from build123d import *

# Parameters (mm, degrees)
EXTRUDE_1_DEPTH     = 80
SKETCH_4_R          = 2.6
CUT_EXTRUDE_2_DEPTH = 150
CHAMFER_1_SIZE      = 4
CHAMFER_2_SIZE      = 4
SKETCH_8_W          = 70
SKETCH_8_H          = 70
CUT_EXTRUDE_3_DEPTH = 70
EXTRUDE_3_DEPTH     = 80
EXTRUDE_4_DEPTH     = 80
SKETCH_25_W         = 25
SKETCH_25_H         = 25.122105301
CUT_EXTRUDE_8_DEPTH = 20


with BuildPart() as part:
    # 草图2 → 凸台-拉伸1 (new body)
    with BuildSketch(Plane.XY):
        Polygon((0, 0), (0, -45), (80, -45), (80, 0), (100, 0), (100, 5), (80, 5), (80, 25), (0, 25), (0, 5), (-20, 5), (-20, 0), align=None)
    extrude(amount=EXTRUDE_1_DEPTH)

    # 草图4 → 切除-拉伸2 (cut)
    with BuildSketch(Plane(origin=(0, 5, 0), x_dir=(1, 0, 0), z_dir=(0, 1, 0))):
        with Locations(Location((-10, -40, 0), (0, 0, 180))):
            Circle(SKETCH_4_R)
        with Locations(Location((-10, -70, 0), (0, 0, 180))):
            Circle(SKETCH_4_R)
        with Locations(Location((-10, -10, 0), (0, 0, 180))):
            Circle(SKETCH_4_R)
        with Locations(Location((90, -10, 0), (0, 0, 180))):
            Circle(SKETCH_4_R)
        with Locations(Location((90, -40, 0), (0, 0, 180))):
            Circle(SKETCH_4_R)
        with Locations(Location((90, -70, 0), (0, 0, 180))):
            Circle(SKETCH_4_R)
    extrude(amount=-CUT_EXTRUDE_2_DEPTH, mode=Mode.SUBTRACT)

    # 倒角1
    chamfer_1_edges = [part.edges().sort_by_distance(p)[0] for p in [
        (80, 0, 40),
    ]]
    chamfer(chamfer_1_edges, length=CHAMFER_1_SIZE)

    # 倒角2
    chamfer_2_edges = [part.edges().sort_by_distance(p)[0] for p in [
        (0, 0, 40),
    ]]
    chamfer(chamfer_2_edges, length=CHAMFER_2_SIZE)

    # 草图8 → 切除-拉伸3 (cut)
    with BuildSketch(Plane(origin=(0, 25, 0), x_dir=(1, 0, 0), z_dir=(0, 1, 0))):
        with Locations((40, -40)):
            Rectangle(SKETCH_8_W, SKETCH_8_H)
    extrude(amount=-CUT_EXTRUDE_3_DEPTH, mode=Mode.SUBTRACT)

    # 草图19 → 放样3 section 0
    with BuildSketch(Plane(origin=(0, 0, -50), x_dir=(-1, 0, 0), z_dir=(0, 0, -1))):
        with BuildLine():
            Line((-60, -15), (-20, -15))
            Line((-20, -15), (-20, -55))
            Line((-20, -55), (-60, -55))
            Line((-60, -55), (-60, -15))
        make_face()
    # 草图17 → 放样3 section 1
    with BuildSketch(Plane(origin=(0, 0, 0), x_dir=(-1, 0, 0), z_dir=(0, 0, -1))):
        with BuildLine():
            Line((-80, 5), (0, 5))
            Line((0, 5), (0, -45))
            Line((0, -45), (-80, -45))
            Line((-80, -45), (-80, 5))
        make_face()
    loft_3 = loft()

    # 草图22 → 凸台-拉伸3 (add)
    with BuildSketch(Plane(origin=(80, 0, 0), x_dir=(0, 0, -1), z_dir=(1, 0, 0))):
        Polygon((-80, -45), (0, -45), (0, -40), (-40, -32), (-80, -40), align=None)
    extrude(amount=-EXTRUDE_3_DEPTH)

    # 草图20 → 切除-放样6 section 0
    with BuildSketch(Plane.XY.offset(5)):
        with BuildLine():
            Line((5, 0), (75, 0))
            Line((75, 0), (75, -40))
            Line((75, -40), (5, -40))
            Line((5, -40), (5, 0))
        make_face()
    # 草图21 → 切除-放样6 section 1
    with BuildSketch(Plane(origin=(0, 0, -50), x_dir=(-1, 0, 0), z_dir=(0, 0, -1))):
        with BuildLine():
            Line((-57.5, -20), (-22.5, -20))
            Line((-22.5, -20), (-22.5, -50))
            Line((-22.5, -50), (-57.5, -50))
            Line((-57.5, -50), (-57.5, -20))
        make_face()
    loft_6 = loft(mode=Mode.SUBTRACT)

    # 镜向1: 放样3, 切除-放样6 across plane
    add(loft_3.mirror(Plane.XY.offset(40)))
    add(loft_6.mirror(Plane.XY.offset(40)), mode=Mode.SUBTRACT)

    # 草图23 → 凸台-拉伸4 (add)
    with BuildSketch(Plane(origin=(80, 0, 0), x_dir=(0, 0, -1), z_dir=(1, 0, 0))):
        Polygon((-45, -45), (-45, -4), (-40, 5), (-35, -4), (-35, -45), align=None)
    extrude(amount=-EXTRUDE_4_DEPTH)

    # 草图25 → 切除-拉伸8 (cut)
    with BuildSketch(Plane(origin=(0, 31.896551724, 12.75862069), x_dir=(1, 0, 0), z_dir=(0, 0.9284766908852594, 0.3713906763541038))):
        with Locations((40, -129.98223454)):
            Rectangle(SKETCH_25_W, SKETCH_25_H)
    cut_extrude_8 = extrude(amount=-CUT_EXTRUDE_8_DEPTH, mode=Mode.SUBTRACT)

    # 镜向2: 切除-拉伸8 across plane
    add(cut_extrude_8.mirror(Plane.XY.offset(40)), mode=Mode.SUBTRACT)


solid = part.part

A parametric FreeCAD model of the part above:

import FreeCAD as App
import Part
import Sketcher
Q = App.Units.Quantity


def edges_at(feature, points):
    """Names of the edges that pass closest to the given points."""
    edges = feature.Shape.Edges
    near = lambda p: min(range(len(edges)), key=lambda i: edges[i].distToShape(Part.Vertex(*p))[0])
    return sorted({f"Edge{near(p) + 1}" for p in points})

doc = App.newDocument("Part")
params = doc.addObject("Spreadsheet::Sheet", "Params")
for row, (alias, value) in enumerate([
    ("sketch1_width", "80 mm"),
    ("sketch1_width2", "20 mm"),
    ("sketch1_height", "45 mm"),
    ("sketch1_height2", "5 mm"),
    ("pad1_length", "80 mm"),
    ("sketch2_diameter", "5.2 mm"),
    ("pocket1_length", "150 mm"),
    ("chamfer_size", "4 mm"),
    ("chamfer2_size", "4 mm"),
    ("sketch3_width", "70 mm"),
    ("pocket2_length", "70 mm"),
    ("sketch4_width", "40 mm"),
    ("sketch5_width", "80 mm"),
    ("sketch5_height", "50 mm"),
    ("sketch6_width", "5 mm"),
    ("sketch6_height", "80 mm"),
    ("pad2_length", "80 mm"),
    ("sketch7_width", "70 mm"),
    ("sketch7_height", "40 mm"),
    ("sketch8_width", "35 mm"),
    ("sketch8_height", "30 mm"),
    ("sketch9_width", "41 mm"),
    ("sketch9_height", "10 mm"),
    ("pad3_length", "80 mm"),
    ("sketch10_width", "25 mm"),
    ("pocket3_length", "20 mm"),
], start=1):
    params.set(f"A{row}", alias)
    params.set(f"B{row}", "=" + value)
    params.setAlias(f"B{row}", alias)

body = doc.addObject("PartDesign::Body", "Body")

sketch1 = body.newObject("Sketcher::SketchObject", "Sketch")
sketch1.AttachmentSupport = (doc.getObject("XY_Plane"), [""])
sketch1.MapMode = "FlatFace"
sketch1.addGeometry(Part.LineSegment(App.Vector(0, 0, 0), App.Vector(0, -45, 0)), False)
sketch1.addGeometry(Part.LineSegment(App.Vector(0, -45, 0), App.Vector(80, -45, 0)), False)
sketch1.addGeometry(Part.LineSegment(App.Vector(80, -45, 0), App.Vector(80, 0, 0)), False)
sketch1.addGeometry(Part.LineSegment(App.Vector(80, 0, 0), App.Vector(100, 0, 0)), False)
sketch1.addGeometry(Part.LineSegment(App.Vector(100, 0, 0), App.Vector(100, 5, 0)), False)
sketch1.addGeometry(Part.LineSegment(App.Vector(100, 5, 0), App.Vector(80, 5, 0)), False)
sketch1.addGeometry(Part.LineSegment(App.Vector(80, 5, 0), App.Vector(80, 25, 0)), False)
sketch1.addGeometry(Part.LineSegment(App.Vector(80, 25, 0), App.Vector(0, 25, 0)), False)
sketch1.addGeometry(Part.LineSegment(App.Vector(0, 25, 0), App.Vector(0, 5, 0)), False)
sketch1.addGeometry(Part.LineSegment(App.Vector(0, 5, 0), App.Vector(-20, 5, 0)), False)
sketch1.addGeometry(Part.LineSegment(App.Vector(-20, 5, 0), App.Vector(-20, 0, 0)), False)
sketch1.addGeometry(Part.LineSegment(App.Vector(-20, 0, 0), App.Vector(0, 0, 0)), False)
sketch1.addConstraint(Sketcher.Constraint("Coincident", 0, 2, 1, 1))
sketch1.addConstraint(Sketcher.Constraint("Coincident", 1, 2, 2, 1))
sketch1.addConstraint(Sketcher.Constraint("Coincident", 2, 2, 3, 1))
sketch1.addConstraint(Sketcher.Constraint("Coincident", 3, 2, 4, 1))
sketch1.addConstraint(Sketcher.Constraint("Coincident", 4, 2, 5, 1))
sketch1.addConstraint(Sketcher.Constraint("Coincident", 5, 2, 6, 1))
sketch1.addConstraint(Sketcher.Constraint("Coincident", 6, 2, 7, 1))
sketch1.addConstraint(Sketcher.Constraint("Coincident", 7, 2, 8, 1))
sketch1.addConstraint(Sketcher.Constraint("Coincident", 8, 2, 9, 1))
sketch1.addConstraint(Sketcher.Constraint("Coincident", 9, 2, 10, 1))
sketch1.addConstraint(Sketcher.Constraint("Coincident", 10, 2, 11, 1))
sketch1.addConstraint(Sketcher.Constraint("Coincident", 11, 2, 0, 1))
sketch1.addConstraint(Sketcher.Constraint("Vertical", 0))
sketch1.addConstraint(Sketcher.Constraint("Horizontal", 1))
sketch1.addConstraint(Sketcher.Constraint("Vertical", 2))
sketch1.addConstraint(Sketcher.Constraint("Horizontal", 3))
sketch1.addConstraint(Sketcher.Constraint("Vertical", 4))
sketch1.addConstraint(Sketcher.Constraint("Horizontal", 5))
sketch1.addConstraint(Sketcher.Constraint("Vertical", 6))
sketch1.addConstraint(Sketcher.Constraint("Horizontal", 7))
sketch1.addConstraint(Sketcher.Constraint("Vertical", 8))
sketch1.addConstraint(Sketcher.Constraint("Horizontal", 9))
sketch1.addConstraint(Sketcher.Constraint("Vertical", 10))
sketch1.addConstraint(Sketcher.Constraint("Horizontal", 11))
sketch1.addConstraint(Sketcher.Constraint("Coincident", 11, 2, -1, 1))
sketch1.addConstraint(Sketcher.Constraint("PointOnObject", 2, 2, -1))
sketch1.addConstraint(Sketcher.Constraint("PointOnObject", 7, 2, -2))
sketch1.addConstraint(Sketcher.Constraint("Horizontal", 5, 2, 8, 2))
sketch1.addConstraint(Sketcher.Constraint("Vertical", 2, 2, 5, 2))
sketch1.addConstraint(Sketcher.Constraint("Equal", 5, 9))
sketch1.addConstraint(Sketcher.Constraint("Equal", 11, 6))
sketch1.addConstraint(Sketcher.Constraint("DistanceX", 1, 1, 1, 2, Q("80 mm")))
sketch1.addConstraint(Sketcher.Constraint("DistanceX", 3, 1, 3, 2, Q("20 mm")))
sketch1.addConstraint(Sketcher.Constraint("DistanceY", 0, 2, 0, 1, Q("45 mm")))
sketch1.addConstraint(Sketcher.Constraint("DistanceY", 4, 1, 4, 2, Q("5 mm")))
sketch1.setExpression("Constraints[31]", "Params.sketch1_width")
sketch1.setExpression("Constraints[32]", "Params.sketch1_width2")
sketch1.setExpression("Constraints[33]", "Params.sketch1_height")
sketch1.setExpression("Constraints[34]", "Params.sketch1_height2")
pad1 = body.newObject("PartDesign::Pad", "Pad")
pad1.Profile = sketch1
pad1.setExpression("Length", "Params.pad1_length")

sketch2 = body.newObject("Sketcher::SketchObject", "Sketch001")
sketch2.AttachmentSupport = (doc.getObject("XZ_Plane"), [""])
sketch2.MapMode = "FlatFace"
sketch2.AttachmentOffset = App.Placement(App.Vector(0, 0, -5), App.Rotation())
sketch2.addGeometry(Part.Circle(App.Vector(-10, 40, 0), App.Vector(0, 0, 1), 2.6), False)
sketch2.addGeometry(Part.Circle(App.Vector(-10, 70, 0), App.Vector(0, 0, 1), 2.6), False)
sketch2.addGeometry(Part.Circle(App.Vector(-10, 10, 0), App.Vector(0, 0, 1), 2.6), False)
sketch2.addGeometry(Part.Circle(App.Vector(90, 10, 0), App.Vector(0, 0, 1), 2.6), False)
sketch2.addGeometry(Part.Circle(App.Vector(90, 40, 0), App.Vector(0, 0, 1), 2.6), False)
sketch2.addGeometry(Part.Circle(App.Vector(90, 70, 0), App.Vector(0, 0, 1), 2.6), False)
sketch2.addConstraint(Sketcher.Constraint("Equal", 0, 1))
sketch2.addConstraint(Sketcher.Constraint("Equal", 1, 2))
sketch2.addConstraint(Sketcher.Constraint("Equal", 2, 3))
sketch2.addConstraint(Sketcher.Constraint("Equal", 3, 4))
sketch2.addConstraint(Sketcher.Constraint("Equal", 4, 5))
sketch2.addConstraint(Sketcher.Constraint("Horizontal", 2, 3, 3, 3))
sketch2.addConstraint(Sketcher.Constraint("Horizontal", 0, 3, 4, 3))
sketch2.addConstraint(Sketcher.Constraint("Horizontal", 1, 3, 5, 3))
sketch2.addConstraint(Sketcher.Constraint("Vertical", 0, 3, 1, 3))
sketch2.addConstraint(Sketcher.Constraint("Vertical", 1, 3, 2, 3))
sketch2.addConstraint(Sketcher.Constraint("Vertical", 3, 3, 4, 3))
sketch2.addConstraint(Sketcher.Constraint("Vertical", 4, 3, 5, 3))
sketch2.addConstraint(Sketcher.Constraint("Diameter", 0, Q("5.2 mm")))
sketch2.addConstraint(Sketcher.Constraint("DistanceX", 0, 3, -1, 1, Q("10 mm")))
sketch2.addConstraint(Sketcher.Constraint("DistanceY", -1, 1, 0, 3, Q("40 mm")))
sketch2.addConstraint(Sketcher.Constraint("DistanceY", -1, 1, 1, 3, Q("70 mm")))
sketch2.addConstraint(Sketcher.Constraint("DistanceY", -1, 1, 2, 3, Q("10 mm")))
sketch2.addConstraint(Sketcher.Constraint("DistanceX", -1, 1, 3, 3, Q("90 mm")))
sketch2.setExpression("Constraints[12]", "Params.sketch2_diameter")
pocket1 = body.newObject("PartDesign::Pocket", "Pocket")
pocket1.Profile = sketch2
pocket1.setExpression("Length", "Params.pocket1_length")
pocket1.Reversed = True
doc.recompute()

chamfer = body.newObject("PartDesign::Chamfer", "Chamfer")
chamfer.Base = (pocket1, edges_at(pocket1, [(80, 0, 40)]))
chamfer.setExpression("Size", "Params.chamfer_size")
doc.recompute()

chamfer2 = body.newObject("PartDesign::Chamfer", "Chamfer001")
chamfer2.Base = (chamfer, edges_at(chamfer, [(0, 0, 40)]))
chamfer2.setExpression("Size", "Params.chamfer2_size")

sketch3 = body.newObject("Sketcher::SketchObject", "Sketch002")
sketch3.AttachmentSupport = (doc.getObject("XZ_Plane"), [""])
sketch3.MapMode = "FlatFace"
sketch3.AttachmentOffset = App.Placement(App.Vector(0, 0, -25), App.Rotation())
sketch3.addGeometry(Part.LineSegment(App.Vector(5, 5, 0), App.Vector(5, 75, 0)), False)
sketch3.addGeometry(Part.LineSegment(App.Vector(5, 75, 0), App.Vector(75, 75, 0)), False)
sketch3.addGeometry(Part.LineSegment(App.Vector(75, 75, 0), App.Vector(75, 5, 0)), False)
sketch3.addGeometry(Part.LineSegment(App.Vector(75, 5, 0), App.Vector(5, 5, 0)), False)
sketch3.addConstraint(Sketcher.Constraint("Coincident", 0, 2, 1, 1))
sketch3.addConstraint(Sketcher.Constraint("Coincident", 1, 2, 2, 1))
sketch3.addConstraint(Sketcher.Constraint("Coincident", 2, 2, 3, 1))
sketch3.addConstraint(Sketcher.Constraint("Coincident", 3, 2, 0, 1))
sketch3.addConstraint(Sketcher.Constraint("Vertical", 0))
sketch3.addConstraint(Sketcher.Constraint("Horizontal", 1))
sketch3.addConstraint(Sketcher.Constraint("Vertical", 2))
sketch3.addConstraint(Sketcher.Constraint("Horizontal", 3))
sketch3.addConstraint(Sketcher.Constraint("Equal", 3, 0))
sketch3.addConstraint(Sketcher.Constraint("DistanceX", 1, 1, 1, 2, Q("70 mm")))
sketch3.addConstraint(Sketcher.Constraint("DistanceX", -1, 1, 0, 2, Q("5 mm")))
sketch3.addConstraint(Sketcher.Constraint("DistanceY", -1, 1, 0, 2, Q("75 mm")))
sketch3.setExpression("Constraints[9]", "Params.sketch3_width")
pocket2 = body.newObject("PartDesign::Pocket", "Pocket001")
pocket2.Profile = sketch3
pocket2.setExpression("Length", "Params.pocket2_length")
pocket2.Reversed = True

sketch4 = body.newObject("Sketcher::SketchObject", "Sketch003")
sketch4.AttachmentSupport = (doc.getObject("XY_Plane"), [""])
sketch4.MapMode = "FlatFace"
sketch4.AttachmentOffset = App.Placement(App.Vector(0, 0, -50), App.Rotation())
sketch4.addGeometry(Part.LineSegment(App.Vector(20, -15, 0), App.Vector(60, -15, 0)), False)
sketch4.addGeometry(Part.LineSegment(App.Vector(60, -15, 0), App.Vector(60, -55, 0)), False)
sketch4.addGeometry(Part.LineSegment(App.Vector(60, -55, 0), App.Vector(20, -55, 0)), False)
sketch4.addGeometry(Part.LineSegment(App.Vector(20, -55, 0), App.Vector(20, -15, 0)), False)
sketch4.addConstraint(Sketcher.Constraint("Coincident", 0, 2, 1, 1))
sketch4.addConstraint(Sketcher.Constraint("Coincident", 1, 2, 2, 1))
sketch4.addConstraint(Sketcher.Constraint("Coincident", 2, 2, 3, 1))
sketch4.addConstraint(Sketcher.Constraint("Coincident", 3, 2, 0, 1))
sketch4.addConstraint(Sketcher.Constraint("Horizontal", 0))
sketch4.addConstraint(Sketcher.Constraint("Vertical", 1))
sketch4.addConstraint(Sketcher.Constraint("Horizontal", 2))
sketch4.addConstraint(Sketcher.Constraint("Vertical", 3))
sketch4.addConstraint(Sketcher.Constraint("Equal", 2, 1))
sketch4.addConstraint(Sketcher.Constraint("DistanceX", 0, 1, 0, 2, Q("40 mm")))
sketch4.addConstraint(Sketcher.Constraint("DistanceX", -1, 1, 0, 2, Q("60 mm")))
sketch4.addConstraint(Sketcher.Constraint("DistanceY", 0, 2, -1, 1, Q("15 mm")))
sketch4.setExpression("Constraints[9]", "Params.sketch4_width")

sketch5 = body.newObject("Sketcher::SketchObject", "Sketch004")
sketch5.AttachmentSupport = (doc.getObject("XY_Plane"), [""])
sketch5.MapMode = "FlatFace"
sketch5.addGeometry(Part.LineSegment(App.Vector(0, 5, 0), App.Vector(80, 5, 0)), False)
sketch5.addGeometry(Part.LineSegment(App.Vector(80, 5, 0), App.Vector(80, -45, 0)), False)
sketch5.addGeometry(Part.LineSegment(App.Vector(80, -45, 0), App.Vector(0, -45, 0)), False)
sketch5.addGeometry(Part.LineSegment(App.Vector(0, -45, 0), App.Vector(0, 5, 0)), False)
sketch5.addConstraint(Sketcher.Constraint("Coincident", 0, 2, 1, 1))
sketch5.addConstraint(Sketcher.Constraint("Coincident", 1, 2, 2, 1))
sketch5.addConstraint(Sketcher.Constraint("Coincident", 2, 2, 3, 1))
sketch5.addConstraint(Sketcher.Constraint("Coincident", 3, 2, 0, 1))
sketch5.addConstraint(Sketcher.Constraint("Horizontal", 0))
sketch5.addConstraint(Sketcher.Constraint("Vertical", 1))
sketch5.addConstraint(Sketcher.Constraint("Horizontal", 2))
sketch5.addConstraint(Sketcher.Constraint("Vertical", 3))
sketch5.addConstraint(Sketcher.Constraint("PointOnObject", 2, 2, -2))
sketch5.addConstraint(Sketcher.Constraint("DistanceX", 0, 1, 0, 2, Q("80 mm")))
sketch5.addConstraint(Sketcher.Constraint("DistanceY", 1, 2, 1, 1, Q("50 mm")))
sketch5.addConstraint(Sketcher.Constraint("DistanceY", -1, 1, 0, 2, Q("5 mm")))
sketch5.setExpression("Constraints[9]", "Params.sketch5_width")
sketch5.setExpression("Constraints[10]", "Params.sketch5_height")

additiveloft = body.newObject("PartDesign::AdditiveLoft", "AdditiveLoft")
additiveloft.Profile = sketch4
additiveloft.Sections = [sketch5]

sketch6 = body.newObject("Sketcher::SketchObject", "Sketch005")
sketch6.AttachmentSupport = (doc.getObject("YZ_Plane"), [""])
sketch6.MapMode = "FlatFace"
sketch6.AttachmentOffset = App.Placement(App.Vector(0, 0, 80), App.Rotation())
sketch6.addGeometry(Part.LineSegment(App.Vector(-45, 80, 0), App.Vector(-45, 0, 0)), False)
sketch6.addGeometry(Part.LineSegment(App.Vector(-45, 0, 0), App.Vector(-40, 0, 0)), False)
sketch6.addGeometry(Part.LineSegment(App.Vector(-40, 0, 0), App.Vector(-32, 40, 0)), False)
sketch6.addGeometry(Part.LineSegment(App.Vector(-32, 40, 0), App.Vector(-40, 80, 0)), False)
sketch6.addGeometry(Part.LineSegment(App.Vector(-40, 80, 0), App.Vector(-45, 80, 0)), False)
sketch6.addConstraint(Sketcher.Constraint("Coincident", 0, 2, 1, 1))
sketch6.addConstraint(Sketcher.Constraint("Coincident", 1, 2, 2, 1))
sketch6.addConstraint(Sketcher.Constraint("Coincident", 2, 2, 3, 1))
sketch6.addConstraint(Sketcher.Constraint("Coincident", 3, 2, 4, 1))
sketch6.addConstraint(Sketcher.Constraint("Coincident", 4, 2, 0, 1))
sketch6.addConstraint(Sketcher.Constraint("Vertical", 0))
sketch6.addConstraint(Sketcher.Constraint("Horizontal", 1))
sketch6.addConstraint(Sketcher.Constraint("Horizontal", 4))
sketch6.addConstraint(Sketcher.Constraint("PointOnObject", 0, 2, -1))
sketch6.addConstraint(Sketcher.Constraint("Vertical", 1, 2, 3, 2))
sketch6.addConstraint(Sketcher.Constraint("Equal", 2, 3))
sketch6.addConstraint(Sketcher.Constraint("DistanceX", 1, 1, 1, 2, Q("5 mm")))
sketch6.addConstraint(Sketcher.Constraint("DistanceY", 0, 2, 0, 1, Q("80 mm")))
sketch6.addConstraint(Sketcher.Constraint("DistanceX", 0, 2, -1, 1, Q("45 mm")))
sketch6.addConstraint(Sketcher.Constraint("DistanceX", 2, 2, -1, 1, Q("32 mm")))
sketch6.setExpression("Constraints[11]", "Params.sketch6_width")
sketch6.setExpression("Constraints[12]", "Params.sketch6_height")
pad2 = body.newObject("PartDesign::Pad", "Pad001")
pad2.Profile = sketch6
pad2.setExpression("Length", "Params.pad2_length")
pad2.Reversed = True

sketch7 = body.newObject("Sketcher::SketchObject", "Sketch006")
sketch7.AttachmentSupport = (doc.getObject("XY_Plane"), [""])
sketch7.MapMode = "FlatFace"
sketch7.AttachmentOffset = App.Placement(App.Vector(0, 0, 5), App.Rotation())
sketch7.addGeometry(Part.LineSegment(App.Vector(75, 0, 0), App.Vector(5, 0, 0)), False)
sketch7.addGeometry(Part.LineSegment(App.Vector(5, 0, 0), App.Vector(5, -40, 0)), False)
sketch7.addGeometry(Part.LineSegment(App.Vector(5, -40, 0), App.Vector(75, -40, 0)), False)
sketch7.addGeometry(Part.LineSegment(App.Vector(75, -40, 0), App.Vector(75, 0, 0)), False)
sketch7.addConstraint(Sketcher.Constraint("Coincident", 0, 2, 1, 1))
sketch7.addConstraint(Sketcher.Constraint("Coincident", 1, 2, 2, 1))
sketch7.addConstraint(Sketcher.Constraint("Coincident", 2, 2, 3, 1))
sketch7.addConstraint(Sketcher.Constraint("Coincident", 3, 2, 0, 1))
sketch7.addConstraint(Sketcher.Constraint("Horizontal", 0))
sketch7.addConstraint(Sketcher.Constraint("Vertical", 1))
sketch7.addConstraint(Sketcher.Constraint("Horizontal", 2))
sketch7.addConstraint(Sketcher.Constraint("Vertical", 3))
sketch7.addConstraint(Sketcher.Constraint("PointOnObject", 0, 2, -1))
sketch7.addConstraint(Sketcher.Constraint("DistanceX", 0, 2, 0, 1, Q("70 mm")))
sketch7.addConstraint(Sketcher.Constraint("DistanceY", 1, 2, 1, 1, Q("40 mm")))
sketch7.addConstraint(Sketcher.Constraint("DistanceX", -1, 1, 0, 2, Q("5 mm")))
sketch7.setExpression("Constraints[9]", "Params.sketch7_width")
sketch7.setExpression("Constraints[10]", "Params.sketch7_height")

sketch8 = body.newObject("Sketcher::SketchObject", "Sketch007")
sketch8.AttachmentSupport = (doc.getObject("XY_Plane"), [""])
sketch8.MapMode = "FlatFace"
sketch8.AttachmentOffset = App.Placement(App.Vector(0, 0, -50), App.Rotation())
sketch8.addGeometry(Part.LineSegment(App.Vector(22, -20, 0), App.Vector(58, -20, 0)), False)
sketch8.addGeometry(Part.LineSegment(App.Vector(58, -20, 0), App.Vector(58, -50, 0)), False)
sketch8.addGeometry(Part.LineSegment(App.Vector(58, -50, 0), App.Vector(22, -50, 0)), False)
sketch8.addGeometry(Part.LineSegment(App.Vector(22, -50, 0), App.Vector(22, -20, 0)), False)
sketch8.addConstraint(Sketcher.Constraint("Coincident", 0, 2, 1, 1))
sketch8.addConstraint(Sketcher.Constraint("Coincident", 1, 2, 2, 1))
sketch8.addConstraint(Sketcher.Constraint("Coincident", 2, 2, 3, 1))
sketch8.addConstraint(Sketcher.Constraint("Coincident", 3, 2, 0, 1))
sketch8.addConstraint(Sketcher.Constraint("Horizontal", 0))
sketch8.addConstraint(Sketcher.Constraint("Vertical", 1))
sketch8.addConstraint(Sketcher.Constraint("Horizontal", 2))
sketch8.addConstraint(Sketcher.Constraint("Vertical", 3))
sketch8.addConstraint(Sketcher.Constraint("DistanceX", 0, 1, 0, 2, Q("35 mm")))
sketch8.addConstraint(Sketcher.Constraint("DistanceY", 1, 2, 1, 1, Q("30 mm")))
sketch8.addConstraint(Sketcher.Constraint("DistanceY", 0, 2, -1, 1, Q("20 mm")))
sketch8.addConstraint(Sketcher.Constraint("DistanceX", -1, 1, 0, 2, Q("57.5 mm")))
sketch8.setExpression("Constraints[8]", "Params.sketch8_width")
sketch8.setExpression("Constraints[9]", "Params.sketch8_height")

subtractiveloft = body.newObject("PartDesign::SubtractiveLoft", "SubtractiveLoft")
subtractiveloft.Profile = sketch7
subtractiveloft.Sections = [sketch8]
doc.recompute()

datumplane = body.newObject("PartDesign::Plane", "DatumPlane")
datumplane.AttachmentSupport = (doc.getObject("XY_Plane"), [""])
datumplane.MapMode = "FlatFace"
datumplane.AttachmentOffset = App.Placement(App.Vector(0, 0, 40), App.Rotation())
mirrored = body.newObject("PartDesign::Mirrored", "Mirrored")
mirrored.Originals = [additiveloft, subtractiveloft]
mirrored.MirrorPlane = (datumplane, [""])
body.Tip = mirrored

sketch9 = body.newObject("Sketcher::SketchObject", "Sketch008")
sketch9.AttachmentSupport = (doc.getObject("YZ_Plane"), [""])
sketch9.MapMode = "FlatFace"
sketch9.AttachmentOffset = App.Placement(App.Vector(0, 0, 80), App.Rotation())
sketch9.addGeometry(Part.LineSegment(App.Vector(-4, 45, 0), App.Vector(-45, 45, 0)), False)
sketch9.addGeometry(Part.LineSegment(App.Vector(-45, 45, 0), App.Vector(-45, 35, 0)), False)
sketch9.addGeometry(Part.LineSegment(App.Vector(-45, 35, 0), App.Vector(-4, 35, 0)), False)
sketch9.addGeometry(Part.LineSegment(App.Vector(-4, 35, 0), App.Vector(5, 40, 0)), False)
sketch9.addGeometry(Part.LineSegment(App.Vector(5, 40, 0), App.Vector(-4, 45, 0)), False)
sketch9.addConstraint(Sketcher.Constraint("Coincident", 0, 2, 1, 1))
sketch9.addConstraint(Sketcher.Constraint("Coincident", 1, 2, 2, 1))
sketch9.addConstraint(Sketcher.Constraint("Coincident", 2, 2, 3, 1))
sketch9.addConstraint(Sketcher.Constraint("Coincident", 3, 2, 4, 1))
sketch9.addConstraint(Sketcher.Constraint("Coincident", 4, 2, 0, 1))
sketch9.addConstraint(Sketcher.Constraint("Horizontal", 0))
sketch9.addConstraint(Sketcher.Constraint("Vertical", 1))
sketch9.addConstraint(Sketcher.Constraint("Horizontal", 2))
sketch9.addConstraint(Sketcher.Constraint("Vertical", 2, 2, 4, 2))
sketch9.addConstraint(Sketcher.Constraint("Equal", 3, 4))
sketch9.addConstraint(Sketcher.Constraint("DistanceX", 0, 2, 0, 1, Q("41 mm")))
sketch9.addConstraint(Sketcher.Constraint("DistanceY", 1, 2, 1, 1, Q("10 mm")))
sketch9.addConstraint(Sketcher.Constraint("DistanceX", 0, 2, -1, 1, Q("45 mm")))
sketch9.addConstraint(Sketcher.Constraint("DistanceY", -1, 1, 0, 2, Q("45 mm")))
sketch9.addConstraint(Sketcher.Constraint("DistanceX", -1, 1, 3, 2, Q("5 mm")))
sketch9.setExpression("Constraints[10]", "Params.sketch9_width")
sketch9.setExpression("Constraints[11]", "Params.sketch9_height")
pad3 = body.newObject("PartDesign::Pad", "Pad002")
pad3.Profile = sketch9
pad3.setExpression("Length", "Params.pad3_length")
pad3.Reversed = True

sketch10 = body.newObject("Sketcher::SketchObject", "Sketch009")
sketch10.Placement = App.Placement(App.Vector(0, 31.896552, 12.758621), App.Rotation(App.Vector(1, 0, 0), App.Vector(0, 0.371390676, -0.928476691), App.Vector(0, 0.928476691, 0.371390676), "ZXY"))
sketch10.addGeometry(Part.LineSegment(App.Vector(28, -117, 0), App.Vector(28, -143, 0)), False)
sketch10.addGeometry(Part.LineSegment(App.Vector(28, -143, 0), App.Vector(52, -143, 0)), False)
sketch10.addGeometry(Part.LineSegment(App.Vector(52, -143, 0), App.Vector(52, -117, 0)), False)
sketch10.addGeometry(Part.LineSegment(App.Vector(52, -117, 0), App.Vector(28, -117, 0)), False)
sketch10.addConstraint(Sketcher.Constraint("Coincident", 0, 2, 1, 1))
sketch10.addConstraint(Sketcher.Constraint("Coincident", 1, 2, 2, 1))
sketch10.addConstraint(Sketcher.Constraint("Coincident", 2, 2, 3, 1))
sketch10.addConstraint(Sketcher.Constraint("Coincident", 3, 2, 0, 1))
sketch10.addConstraint(Sketcher.Constraint("Vertical", 0))
sketch10.addConstraint(Sketcher.Constraint("Horizontal", 1))
sketch10.addConstraint(Sketcher.Constraint("Vertical", 2))
sketch10.addConstraint(Sketcher.Constraint("Horizontal", 3))
sketch10.addConstraint(Sketcher.Constraint("DistanceX", 1, 1, 1, 2, Q("25 mm")))
sketch10.addConstraint(Sketcher.Constraint("DistanceX", -1, 1, 0, 2, Q("27.5 mm")))
sketch10.addConstraint(Sketcher.Constraint("DistanceY", 0, 2, 0, 1, Q("25.122105 mm")))
sketch10.addConstraint(Sketcher.Constraint("DistanceY", 2, 2, -1, 1, Q("117.421182 mm")))
sketch10.setExpression("Constraints[8]", "Params.sketch10_width")
pocket3 = body.newObject("PartDesign::Pocket", "Pocket002")
pocket3.Profile = sketch10
pocket3.setExpression("Length", "Params.pocket3_length")
doc.recompute()

datumplane2 = body.newObject("PartDesign::Plane", "DatumPlane001")
datumplane2.AttachmentSupport = (doc.getObject("XY_Plane"), [""])
datumplane2.MapMode = "FlatFace"
datumplane2.AttachmentOffset = App.Placement(App.Vector(0, 0, 40), App.Rotation())
mirrored2 = body.newObject("PartDesign::Mirrored", "Mirrored001")
mirrored2.Originals = [pocket3]
mirrored2.MirrorPlane = (datumplane2, [""])
body.Tip = mirrored2

doc.recompute()
